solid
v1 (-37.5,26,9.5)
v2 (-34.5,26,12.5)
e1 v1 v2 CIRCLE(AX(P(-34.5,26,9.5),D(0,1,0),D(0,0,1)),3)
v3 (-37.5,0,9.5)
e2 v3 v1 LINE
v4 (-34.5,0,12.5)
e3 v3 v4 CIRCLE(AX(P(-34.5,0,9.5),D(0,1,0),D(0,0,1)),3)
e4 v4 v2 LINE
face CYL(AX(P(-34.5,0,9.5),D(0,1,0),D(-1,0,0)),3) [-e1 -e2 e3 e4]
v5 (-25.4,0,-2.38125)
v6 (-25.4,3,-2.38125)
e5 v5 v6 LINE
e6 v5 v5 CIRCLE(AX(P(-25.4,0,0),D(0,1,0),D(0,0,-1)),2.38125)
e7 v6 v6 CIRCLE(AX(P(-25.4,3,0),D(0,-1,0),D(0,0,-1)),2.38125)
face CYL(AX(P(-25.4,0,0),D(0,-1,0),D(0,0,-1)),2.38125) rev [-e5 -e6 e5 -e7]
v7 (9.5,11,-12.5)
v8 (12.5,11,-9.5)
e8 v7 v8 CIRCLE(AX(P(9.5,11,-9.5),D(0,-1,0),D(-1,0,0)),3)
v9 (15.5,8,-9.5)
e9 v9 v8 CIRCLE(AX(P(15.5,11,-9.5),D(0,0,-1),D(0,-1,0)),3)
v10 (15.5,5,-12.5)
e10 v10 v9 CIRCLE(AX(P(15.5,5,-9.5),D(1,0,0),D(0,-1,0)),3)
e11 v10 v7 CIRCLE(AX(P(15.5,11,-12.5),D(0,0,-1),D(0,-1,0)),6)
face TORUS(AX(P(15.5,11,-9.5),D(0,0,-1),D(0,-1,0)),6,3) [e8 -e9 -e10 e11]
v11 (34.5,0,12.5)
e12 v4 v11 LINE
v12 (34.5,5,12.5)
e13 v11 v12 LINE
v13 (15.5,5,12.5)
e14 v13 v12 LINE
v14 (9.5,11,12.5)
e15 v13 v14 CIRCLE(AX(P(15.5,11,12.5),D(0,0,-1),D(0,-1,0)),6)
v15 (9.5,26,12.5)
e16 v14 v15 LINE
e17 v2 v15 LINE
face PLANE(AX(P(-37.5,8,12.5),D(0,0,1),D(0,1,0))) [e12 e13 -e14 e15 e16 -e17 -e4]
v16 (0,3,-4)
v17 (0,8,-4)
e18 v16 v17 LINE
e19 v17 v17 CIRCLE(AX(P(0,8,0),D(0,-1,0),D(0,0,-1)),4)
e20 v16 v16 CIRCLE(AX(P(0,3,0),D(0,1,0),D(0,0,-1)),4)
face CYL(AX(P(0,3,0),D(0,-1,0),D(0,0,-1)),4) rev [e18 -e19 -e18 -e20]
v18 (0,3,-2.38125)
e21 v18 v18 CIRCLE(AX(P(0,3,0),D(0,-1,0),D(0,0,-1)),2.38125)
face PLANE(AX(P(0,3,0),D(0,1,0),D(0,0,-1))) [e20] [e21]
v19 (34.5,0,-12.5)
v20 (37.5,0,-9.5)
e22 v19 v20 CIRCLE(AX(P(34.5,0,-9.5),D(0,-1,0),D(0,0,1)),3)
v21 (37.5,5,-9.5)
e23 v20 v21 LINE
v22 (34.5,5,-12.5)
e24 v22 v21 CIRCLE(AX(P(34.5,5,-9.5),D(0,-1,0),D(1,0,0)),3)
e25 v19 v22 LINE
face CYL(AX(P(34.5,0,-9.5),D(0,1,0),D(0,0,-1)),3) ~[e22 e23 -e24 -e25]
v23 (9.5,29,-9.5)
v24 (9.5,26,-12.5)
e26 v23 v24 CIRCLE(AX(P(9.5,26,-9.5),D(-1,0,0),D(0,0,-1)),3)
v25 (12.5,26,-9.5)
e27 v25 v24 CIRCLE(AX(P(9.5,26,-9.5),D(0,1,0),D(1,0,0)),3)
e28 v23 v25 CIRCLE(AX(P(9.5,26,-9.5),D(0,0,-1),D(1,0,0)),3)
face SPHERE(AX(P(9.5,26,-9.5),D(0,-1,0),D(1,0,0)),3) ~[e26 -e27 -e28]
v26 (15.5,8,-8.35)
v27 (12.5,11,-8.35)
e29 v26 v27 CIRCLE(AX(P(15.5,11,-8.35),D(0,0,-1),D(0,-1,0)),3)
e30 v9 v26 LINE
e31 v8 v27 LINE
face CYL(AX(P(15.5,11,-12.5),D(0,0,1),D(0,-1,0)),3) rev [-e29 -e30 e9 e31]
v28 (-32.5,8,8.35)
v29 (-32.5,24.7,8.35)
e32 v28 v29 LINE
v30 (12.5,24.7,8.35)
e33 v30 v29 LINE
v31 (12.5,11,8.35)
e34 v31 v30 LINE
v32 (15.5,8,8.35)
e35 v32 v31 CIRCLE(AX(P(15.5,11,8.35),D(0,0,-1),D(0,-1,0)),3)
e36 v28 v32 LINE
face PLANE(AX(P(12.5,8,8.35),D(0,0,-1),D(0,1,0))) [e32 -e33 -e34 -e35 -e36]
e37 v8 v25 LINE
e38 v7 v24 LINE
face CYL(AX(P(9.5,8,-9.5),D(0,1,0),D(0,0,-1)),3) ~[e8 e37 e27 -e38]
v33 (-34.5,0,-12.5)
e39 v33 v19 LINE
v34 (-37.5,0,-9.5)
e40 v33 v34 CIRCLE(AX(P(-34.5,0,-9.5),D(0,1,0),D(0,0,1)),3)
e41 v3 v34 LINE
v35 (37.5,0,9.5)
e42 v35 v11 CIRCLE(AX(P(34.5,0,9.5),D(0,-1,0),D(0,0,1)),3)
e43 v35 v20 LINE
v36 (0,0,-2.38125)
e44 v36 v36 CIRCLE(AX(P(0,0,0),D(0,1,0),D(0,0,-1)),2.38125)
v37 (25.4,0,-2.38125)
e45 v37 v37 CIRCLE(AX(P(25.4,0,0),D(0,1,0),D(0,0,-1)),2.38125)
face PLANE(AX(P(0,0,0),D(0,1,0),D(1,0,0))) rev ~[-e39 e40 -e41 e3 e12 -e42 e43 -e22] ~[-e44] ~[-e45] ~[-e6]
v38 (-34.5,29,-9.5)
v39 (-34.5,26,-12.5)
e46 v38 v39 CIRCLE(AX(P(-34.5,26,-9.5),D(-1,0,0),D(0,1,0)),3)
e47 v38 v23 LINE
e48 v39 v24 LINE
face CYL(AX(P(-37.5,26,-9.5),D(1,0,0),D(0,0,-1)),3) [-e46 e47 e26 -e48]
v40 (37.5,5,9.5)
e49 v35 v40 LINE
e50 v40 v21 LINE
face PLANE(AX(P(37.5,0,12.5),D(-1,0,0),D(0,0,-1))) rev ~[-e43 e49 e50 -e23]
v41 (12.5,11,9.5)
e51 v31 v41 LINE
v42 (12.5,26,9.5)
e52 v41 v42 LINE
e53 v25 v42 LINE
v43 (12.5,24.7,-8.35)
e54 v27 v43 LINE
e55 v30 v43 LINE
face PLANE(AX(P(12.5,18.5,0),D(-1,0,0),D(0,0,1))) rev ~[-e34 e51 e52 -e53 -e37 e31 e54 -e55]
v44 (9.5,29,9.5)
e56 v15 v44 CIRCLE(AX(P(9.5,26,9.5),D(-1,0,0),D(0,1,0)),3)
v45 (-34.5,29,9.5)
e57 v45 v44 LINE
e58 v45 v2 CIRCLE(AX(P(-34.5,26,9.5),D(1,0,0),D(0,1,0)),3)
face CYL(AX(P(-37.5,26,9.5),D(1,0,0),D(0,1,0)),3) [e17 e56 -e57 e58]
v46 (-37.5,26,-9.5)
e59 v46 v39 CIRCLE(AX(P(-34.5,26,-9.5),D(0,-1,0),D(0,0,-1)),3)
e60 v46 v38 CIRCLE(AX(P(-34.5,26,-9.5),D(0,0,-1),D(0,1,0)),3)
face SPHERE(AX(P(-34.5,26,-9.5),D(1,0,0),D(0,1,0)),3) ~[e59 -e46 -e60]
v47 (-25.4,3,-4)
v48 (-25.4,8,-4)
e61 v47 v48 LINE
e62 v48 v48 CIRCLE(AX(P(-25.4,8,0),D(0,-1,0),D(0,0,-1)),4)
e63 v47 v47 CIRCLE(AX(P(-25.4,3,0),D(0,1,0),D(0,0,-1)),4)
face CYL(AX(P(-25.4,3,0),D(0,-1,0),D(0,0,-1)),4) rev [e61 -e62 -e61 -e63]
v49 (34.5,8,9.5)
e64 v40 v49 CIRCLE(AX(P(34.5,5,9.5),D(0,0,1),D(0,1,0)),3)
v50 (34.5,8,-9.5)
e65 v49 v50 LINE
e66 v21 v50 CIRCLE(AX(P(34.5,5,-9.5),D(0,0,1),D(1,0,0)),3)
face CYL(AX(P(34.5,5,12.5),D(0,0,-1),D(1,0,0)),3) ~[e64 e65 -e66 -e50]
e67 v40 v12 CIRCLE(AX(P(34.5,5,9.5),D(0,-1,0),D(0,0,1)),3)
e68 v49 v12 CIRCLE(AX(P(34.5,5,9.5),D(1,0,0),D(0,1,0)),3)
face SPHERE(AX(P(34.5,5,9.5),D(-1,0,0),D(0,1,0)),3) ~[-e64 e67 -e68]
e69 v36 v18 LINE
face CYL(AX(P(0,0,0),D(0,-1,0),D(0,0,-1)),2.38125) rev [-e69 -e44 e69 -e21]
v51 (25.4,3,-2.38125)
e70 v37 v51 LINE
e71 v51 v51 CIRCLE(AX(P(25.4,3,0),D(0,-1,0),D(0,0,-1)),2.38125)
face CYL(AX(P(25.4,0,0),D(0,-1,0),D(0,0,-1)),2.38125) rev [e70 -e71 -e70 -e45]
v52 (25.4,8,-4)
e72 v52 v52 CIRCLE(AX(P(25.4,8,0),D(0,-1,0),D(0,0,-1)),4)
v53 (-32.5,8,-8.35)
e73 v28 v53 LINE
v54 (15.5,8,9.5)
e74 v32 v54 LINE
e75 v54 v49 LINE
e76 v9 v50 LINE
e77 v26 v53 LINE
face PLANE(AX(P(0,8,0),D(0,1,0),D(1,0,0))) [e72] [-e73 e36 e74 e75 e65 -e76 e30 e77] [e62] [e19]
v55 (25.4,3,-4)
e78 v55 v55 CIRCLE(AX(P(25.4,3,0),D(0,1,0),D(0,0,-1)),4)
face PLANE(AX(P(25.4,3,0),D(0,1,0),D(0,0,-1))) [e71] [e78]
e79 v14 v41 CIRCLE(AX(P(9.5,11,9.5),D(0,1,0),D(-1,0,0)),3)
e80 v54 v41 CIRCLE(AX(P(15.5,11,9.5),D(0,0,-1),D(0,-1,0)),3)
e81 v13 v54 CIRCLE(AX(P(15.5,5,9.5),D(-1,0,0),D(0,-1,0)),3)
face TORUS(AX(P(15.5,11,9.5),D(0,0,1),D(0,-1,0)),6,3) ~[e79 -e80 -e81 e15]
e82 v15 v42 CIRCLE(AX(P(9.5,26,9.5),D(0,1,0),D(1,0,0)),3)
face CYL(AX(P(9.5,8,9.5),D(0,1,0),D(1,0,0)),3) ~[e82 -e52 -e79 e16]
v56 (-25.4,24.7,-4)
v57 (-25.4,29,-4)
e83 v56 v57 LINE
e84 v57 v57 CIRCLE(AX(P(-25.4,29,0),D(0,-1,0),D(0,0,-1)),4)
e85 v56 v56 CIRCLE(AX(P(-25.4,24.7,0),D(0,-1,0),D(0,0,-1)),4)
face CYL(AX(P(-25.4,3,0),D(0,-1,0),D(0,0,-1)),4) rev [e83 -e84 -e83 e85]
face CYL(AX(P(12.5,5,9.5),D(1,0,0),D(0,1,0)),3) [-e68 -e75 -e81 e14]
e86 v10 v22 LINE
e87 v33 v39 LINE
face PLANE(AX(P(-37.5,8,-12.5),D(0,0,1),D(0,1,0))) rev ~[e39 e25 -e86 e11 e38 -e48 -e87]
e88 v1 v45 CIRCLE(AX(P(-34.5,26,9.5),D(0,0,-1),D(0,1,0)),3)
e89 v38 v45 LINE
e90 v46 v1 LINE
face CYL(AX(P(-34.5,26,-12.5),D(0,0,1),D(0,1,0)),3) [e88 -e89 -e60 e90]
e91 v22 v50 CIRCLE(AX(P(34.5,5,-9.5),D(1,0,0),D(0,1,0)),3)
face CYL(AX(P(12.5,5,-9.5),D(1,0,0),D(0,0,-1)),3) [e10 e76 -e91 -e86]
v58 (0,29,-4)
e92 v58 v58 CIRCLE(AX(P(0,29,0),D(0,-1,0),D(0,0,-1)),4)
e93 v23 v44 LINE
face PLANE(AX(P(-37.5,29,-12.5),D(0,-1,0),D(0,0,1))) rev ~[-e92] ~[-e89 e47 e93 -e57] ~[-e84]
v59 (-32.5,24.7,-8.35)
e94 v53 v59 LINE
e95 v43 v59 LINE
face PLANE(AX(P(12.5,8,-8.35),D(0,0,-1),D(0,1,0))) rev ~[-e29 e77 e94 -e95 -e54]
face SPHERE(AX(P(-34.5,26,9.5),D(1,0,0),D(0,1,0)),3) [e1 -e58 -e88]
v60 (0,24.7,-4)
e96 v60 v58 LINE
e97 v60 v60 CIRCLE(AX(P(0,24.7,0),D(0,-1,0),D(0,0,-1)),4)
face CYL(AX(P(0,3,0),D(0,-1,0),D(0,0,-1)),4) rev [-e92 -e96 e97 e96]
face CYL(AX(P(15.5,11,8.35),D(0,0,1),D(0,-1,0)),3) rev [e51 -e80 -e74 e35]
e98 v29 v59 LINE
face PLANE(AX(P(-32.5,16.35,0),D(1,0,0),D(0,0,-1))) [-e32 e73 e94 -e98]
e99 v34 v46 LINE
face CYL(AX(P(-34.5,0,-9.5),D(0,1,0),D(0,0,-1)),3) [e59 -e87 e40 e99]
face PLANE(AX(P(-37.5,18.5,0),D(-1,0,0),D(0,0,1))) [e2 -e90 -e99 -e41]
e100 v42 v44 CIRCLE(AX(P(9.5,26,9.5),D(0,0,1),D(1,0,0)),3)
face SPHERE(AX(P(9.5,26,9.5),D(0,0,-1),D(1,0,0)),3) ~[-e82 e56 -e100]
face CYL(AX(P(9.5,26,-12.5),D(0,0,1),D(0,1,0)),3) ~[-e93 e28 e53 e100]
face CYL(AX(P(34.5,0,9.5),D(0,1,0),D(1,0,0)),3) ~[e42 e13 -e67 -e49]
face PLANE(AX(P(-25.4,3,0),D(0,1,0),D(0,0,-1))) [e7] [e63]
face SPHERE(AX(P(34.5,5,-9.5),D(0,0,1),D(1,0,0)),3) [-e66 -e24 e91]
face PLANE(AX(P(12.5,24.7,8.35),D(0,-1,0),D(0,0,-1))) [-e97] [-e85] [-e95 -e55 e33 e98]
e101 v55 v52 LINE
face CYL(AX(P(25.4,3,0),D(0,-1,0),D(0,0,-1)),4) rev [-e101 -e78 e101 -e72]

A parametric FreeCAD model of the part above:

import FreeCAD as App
import Part
import Sketcher
from FreeCAD import Vector


def edges_at(feature, points):
    """Names of the edges that pass closest to the given points."""
    edges = feature.Shape.Edges
    near = lambda p: min(range(len(edges)), key=lambda i: edges[i].distToShape(Part.Vertex(*p))[0])
    return sorted({f"Edge{near(p) + 1}" for p in points})


def add_polygon(sketch, points):
    """Adds a closed chain of lines whose ends are joined by coincident constraints."""
    first, n = sketch.GeometryCount, len(points)
    for a, b in zip(points, points[1:] + points[:1]):
        sketch.addGeometry(Part.LineSegment(App.Vector(*a, 0), App.Vector(*b, 0)), False)
    for i in range(n):
        sketch.addConstraint(Sketcher.Constraint("Coincident", first + i, 2, first + (i + 1) % n, 1))

doc = App.newDocument("Part")
body = doc.addObject("PartDesign::Body", "Body")

# Sketch on XZ plane
sketch1 = body.newObject("Sketcher::SketchObject", "Sketch")
sketch1.AttachmentSupport = (doc.getObject("XZ_Plane"), [""])
sketch1.MapMode = "FlatFace"
add_polygon(sketch1, [(-37.5, -12.5), (-37.5, 12.5), (37.5, 12.5), (37.5, -12.5)])  # lines 0-3
sketch1.addConstraint([
    Sketcher.Constraint("Vertical", 0),
    Sketcher.Constraint("Horizontal", 1),
    Sketcher.Constraint("Vertical", 2),
    Sketcher.Constraint("Horizontal", 3),
    Sketcher.Constraint("Symmetric", 0, 2, 2, 2, -1, 1),
    Sketcher.Constraint("DistanceX", 1, 1, 1, 2, 75.0),
    Sketcher.Constraint("DistanceY", 0, 1, 0, 2, 25.0),
])
pad1 = body.newObject("PartDesign::Pad", "Pad")
pad1.Profile = sketch1
pad1.Length = 8
pad1.Reversed = True

# Sketch on YZ plane
sketch2 = body.newObject("Sketcher::SketchObject", "Sketch001")
sketch2.AttachmentSupport = (doc.getObject("YZ_Plane"), [""])
sketch2.MapMode = "FlatFace"
sketch2.AttachmentOffset = App.Placement(Vector(0, 0, -37.5), App.Rotation())
add_polygon(sketch2, [(29, -12.5), (8, -12.5), (8, 12.5), (29, 12.5)])  # lines 0-3
sketch2.addConstraint([
    Sketcher.Constraint("Horizontal", 0),
    Sketcher.Constraint("Vertical", 1),
    Sketcher.Constraint("Horizontal", 2),
    Sketcher.Constraint("Vertical", 3),
    Sketcher.Constraint("DistanceX", 0, 2, 0, 1, 21.0),
    Sketcher.Constraint("DistanceY", 1, 1, 1, 2, 25.0),
    Sketcher.Constraint("DistanceX", -1, 1, 0, 2, 8.0),
    Sketcher.Constraint("DistanceY", 0, 2, -1, 1, 12.5),
])
pad2 = body.newObject("PartDesign::Pad", "Pad001")
pad2.Profile = sketch2
pad2.Length = 50

# Sketch on YZ plane
sketch3 = body.newObject("Sketcher::SketchObject", "Sketch002")
sketch3.AttachmentSupport = (doc.getObject("YZ_Plane"), [""])
sketch3.MapMode = "FlatFace"
sketch3.AttachmentOffset = App.Placement(Vector(0, 0, 12.5), App.Rotation())
add_polygon(sketch3, [(24.7, 8.35), (8, 8.35), (8, -8.35), (24.7, -8.35)])  # lines 0-3
sketch3.addConstraint([
    Sketcher.Constraint("Horizontal", 0),
    Sketcher.Constraint("Vertical", 1),
    Sketcher.Constraint("Horizontal", 2),
    Sketcher.Constraint("Vertical", 3),
    Sketcher.Constraint("Equal", 2, 1),
    Sketcher.Constraint("DistanceX", 0, 2, 0, 1, 16.7),
    Sketcher.Constraint("DistanceX", -1, 1, 0, 2, 8.0),
    Sketcher.Constraint("DistanceY", -1, 1, 0, 2, 8.35),
])
pocket1 = body.newObject("PartDesign::Pocket", "Pocket")
pocket1.Profile = sketch3
pocket1.Length = 45

# Sketch on XZ plane
sketch4 = body.newObject("Sketcher::SketchObject", "Sketch003")
sketch4.AttachmentSupport = (doc.getObject("XZ_Plane"), [""])
sketch4.MapMode = "FlatFace"
sketch4.addGeometry([
    Part.Circle(Vector(0, 0, 0), Vector(0, 0, 1), 2.38125),
    Part.Circle(Vector(25.4, 0, 0), Vector(0, 0, 1), 2.38125),
    Part.Circle(Vector(-25.4, 0, 0), Vector(0, 0, 1), 2.38125),
], False)
sketch4.addConstraint([
    Sketcher.Constraint("Coincident", 0, 3, -1, 1),
    Sketcher.Constraint("Equal", 0, 1),
    Sketcher.Constraint("Equal", 1, 2),
    Sketcher.Constraint("Symmetric", 1, 3, 2, 3, -1, 1),
    Sketcher.Constraint("PointOnObject", 1, 3, -1),
    Sketcher.Constraint("Diameter", 0, 4.7625),
    Sketcher.Constraint("DistanceX", -1, 1, 1, 3, 25.4),
])
pocket2 = body.newObject("PartDesign::Pocket", "Pocket001")
pocket2.Profile = sketch4
pocket2.Type = "ThroughAll"

# Sketch on XZ plane
sketch5 = body.newObject("Sketcher::SketchObject", "Sketch004")
sketch5.AttachmentSupport = (doc.getObject("XZ_Plane"), [""])
sketch5.MapMode = "FlatFace"
sketch5.AttachmentOffset = App.Placement(Vector(0, 0, -8), App.Rotation())
sketch5.addGeometry([
    Part.Circle(Vector(0, 0, 0), Vector(0, 0, 1), 4),
    Part.Circle(Vector(25.4, 0, 0), Vector(0, 0, 1), 4),
    Part.Circle(Vector(-25.4, 0, 0), Vector(0, 0, 1), 4),
], False)
sketch5.addConstraint([
    Sketcher.Constraint("Coincident", 0, 3, -1, 1),
    Sketcher.Constraint("Equal", 0, 1),
    Sketcher.Constraint("Equal", 1, 2),
    Sketcher.Constraint("Symmetric", 1, 3, 2, 3, -1, 1),
    Sketcher.Constraint("PointOnObject", 1, 3, -1),
    Sketcher.Constraint("Diameter", 0, 8.0),
    Sketcher.Constraint("DistanceX", -1, 1, 1, 3, 25.4),
])
pocket3 = body.newObject("PartDesign::Pocket", "Pocket002")
pocket3.Profile = sketch5
pocket3.Type = "TwoLengths"
pocket3.Length = 45.760474
pocket3.Length2 = 5
doc.recompute()

fillet = body.newObject("PartDesign::Fillet", "Fillet")
fillet.Base = (pocket3, edges_at(pocket3, [
    (25, 8, 12.5),
    (12.5, 18.5, -12.5),
    (12.5, 29, 0),
    (-12.5, 29, -12.5),
    (12.5, 18.5, 12.5),
    (-12.5, 29, 12.5),
    (12.5, 8, -10.425),
    (-37.5, 29, 0),
    (12.5, 8, 10.425),
    (37.5, 8, 0),
    (37.5, 4, 12.5),
    (-37.5, 14.5, 12.5),
    (-37.5, 14.5, -12.5),
    (37.5, 4, -12.5),
    (25, 8, -12.5),
]))
fillet.Radius = 3

doc.recompute()
